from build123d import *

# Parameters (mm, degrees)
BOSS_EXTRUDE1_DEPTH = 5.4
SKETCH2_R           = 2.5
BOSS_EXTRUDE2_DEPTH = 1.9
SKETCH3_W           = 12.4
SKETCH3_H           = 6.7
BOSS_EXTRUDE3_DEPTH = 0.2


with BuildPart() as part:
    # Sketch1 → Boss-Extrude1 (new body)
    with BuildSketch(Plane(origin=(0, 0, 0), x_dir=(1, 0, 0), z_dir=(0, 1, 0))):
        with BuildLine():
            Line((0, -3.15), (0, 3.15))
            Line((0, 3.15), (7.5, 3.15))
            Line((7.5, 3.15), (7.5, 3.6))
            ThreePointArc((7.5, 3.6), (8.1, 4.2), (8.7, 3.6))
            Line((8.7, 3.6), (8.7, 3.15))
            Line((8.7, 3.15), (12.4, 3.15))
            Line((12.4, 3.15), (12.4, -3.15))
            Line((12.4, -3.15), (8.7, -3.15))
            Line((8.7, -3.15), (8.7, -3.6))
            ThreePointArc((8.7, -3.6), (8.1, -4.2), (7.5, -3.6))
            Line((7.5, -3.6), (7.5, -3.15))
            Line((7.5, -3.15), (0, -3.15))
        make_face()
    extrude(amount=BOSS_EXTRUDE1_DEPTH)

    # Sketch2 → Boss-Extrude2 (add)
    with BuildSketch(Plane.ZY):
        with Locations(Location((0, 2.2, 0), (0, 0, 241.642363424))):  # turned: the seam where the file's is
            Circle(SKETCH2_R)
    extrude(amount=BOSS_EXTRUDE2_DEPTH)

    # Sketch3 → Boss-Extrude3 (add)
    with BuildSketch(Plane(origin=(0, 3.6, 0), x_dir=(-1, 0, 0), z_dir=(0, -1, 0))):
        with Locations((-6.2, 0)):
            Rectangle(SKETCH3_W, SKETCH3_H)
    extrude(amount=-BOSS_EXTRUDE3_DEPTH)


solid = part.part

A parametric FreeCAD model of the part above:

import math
import FreeCAD as App
import Part
import Sketcher

V = App.Vector
Q = App.Units.Quantity


def add_polygon(sketch, points):
    """Adds a closed chain of lines whose ends are joined by coincident constraints."""
    first, n = sketch.GeometryCount, len(points)
    for a, b in zip(points, points[1:] + points[:1]):
        sketch.addGeometry(Part.LineSegment(App.Vector(*a, 0), App.Vector(*b, 0)), False)
    for i in range(n):
        sketch.addConstraint(Sketcher.Constraint("Coincident", first + i, 2, first + (i + 1) % n, 1))

doc = App.newDocument("Part")
body = doc.addObject("PartDesign::Body", "Body")

sketch1 = body.newObject("Sketcher::SketchObject", "Sketch")
sketch1.AttachmentSupport = (doc.getObject("XZ_Plane"), [""])
sketch1.MapMode = "FlatFace"
sketch1.addGeometry([
    Part.LineSegment(V(0, -3.15, 0), V(0, 3.15, 0)),
    Part.LineSegment(V(0, 3.15, 0), V(7.5, 3.15, 0)),
    Part.LineSegment(V(7.5, 3.15, 0), V(7.5, 3.6, 0)),
    Part.ArcOfCircle(Part.Circle(V(8.1, 3.6, 0), V(0, 0, 1), 0.6), math.radians(0), math.radians(180)),
    Part.LineSegment(V(8.7, 3.6, 0), V(8.7, 3.15, 0)),
    Part.LineSegment(V(8.7, 3.15, 0), V(12.4, 3.15, 0)),
    Part.LineSegment(V(12.4, 3.15, 0), V(12.4, -3.15, 0)),
    Part.LineSegment(V(12.4, -3.15, 0), V(8.7, -3.15, 0)),
    Part.LineSegment(V(8.7, -3.15, 0), V(8.7, -3.6, 0)),
    Part.ArcOfCircle(Part.Circle(V(8.1, -3.6, 0), V(0, 0, 1), 0.6), math.radians(180), math.radians(360)),
    Part.LineSegment(V(7.5, -3.6, 0), V(7.5, -3.15, 0)),
    Part.LineSegment(V(7.5, -3.15, 0), V(0, -3.15, 0)),
], False)
sketch1.addConstraint([
    Sketcher.Constraint("Coincident", 0, 2, 1, 1),
    Sketcher.Constraint("Coincident", 1, 2, 2, 1),
    Sketcher.Constraint("Tangent", 2, 2, 3, 2),
    Sketcher.Constraint("Tangent", 3, 1, 4, 1),
    Sketcher.Constraint("Coincident", 4, 2, 5, 1),
    Sketcher.Constraint("Coincident", 5, 2, 6, 1),
    Sketcher.Constraint("Coincident", 6, 2, 7, 1),
    Sketcher.Constraint("Coincident", 7, 2, 8, 1),
    Sketcher.Constraint("Tangent", 8, 2, 9, 2),
    Sketcher.Constraint("Tangent", 9, 1, 10, 1),
    Sketcher.Constraint("Coincident", 10, 2, 11, 1),
    Sketcher.Constraint("Coincident", 11, 2, 0, 1),
    Sketcher.Constraint("Vertical", 0),
    Sketcher.Constraint("Horizontal", 1),
    Sketcher.Constraint("Vertical", 2),
    Sketcher.Constraint("Vertical", 4),
    Sketcher.Constraint("Horizontal", 5),
    Sketcher.Constraint("Vertical", 6),
    Sketcher.Constraint("Horizontal", 7),
    Sketcher.Constraint("Vertical", 8),
    Sketcher.Constraint("Vertical", 10),
    Sketcher.Constraint("Horizontal", 11),
    Sketcher.Constraint("Equal", 3, 9),
    Sketcher.Constraint("Symmetric", 0, 2, 11, 2, -1, 1),
    Sketcher.Constraint("Symmetric", 3, 3, 9, 3, -1),
    Sketcher.Constraint("Horizontal", 1, 2, 4, 2),
    Sketcher.Constraint("Horizontal", 7, 2, 10, 2),
    Sketcher.Constraint("Radius", 3, Q("0.6 mm")),
    Sketcher.Constraint("DistanceX", 1, 1, 1, 2, Q("7.5 mm")),
    Sketcher.Constraint("DistanceX", 5, 1, 5, 2, Q("3.7 mm")),
    Sketcher.Constraint("DistanceY", 0, 1, 0, 2, Q("6.3 mm")),
    Sketcher.Constraint("DistanceY", 2, 1, 2, 2, Q("0.45 mm")),
])
pad1 = body.newObject("PartDesign::Pad", "Pad")
pad1.Profile = sketch1
pad1.Length = 5.4
pad1.Reversed = True

sketch2 = body.newObject("Sketcher::SketchObject", "Sketch001")
sketch2.AttachmentSupport = (doc.getObject("YZ_Plane"), [""])
sketch2.MapMode = "FlatFace"
sketch2.addGeometry(Part.Circle(V(2.2, 0, 0), V(0, 0, 1), 2.5), False)
sketch2.addConstraint([
    Sketcher.Constraint("PointOnObject", 0, 3, -1),
    Sketcher.Constraint("Diameter", 0, Q("5 mm")),
    Sketcher.Constraint("DistanceX", -1, 1, 0, 3, Q("2.2 mm")),
])
pad2 = body.newObject("PartDesign::Pad", "Pad001")
pad2.Profile = sketch2
pad2.Length = 1.9
pad2.Reversed = True

sketch3 = body.newObject("Sketcher::SketchObject", "Sketch002")
sketch3.AttachmentSupport = (doc.getObject("XZ_Plane"), [""])
sketch3.MapMode = "FlatFace"
sketch3.AttachmentOffset = App.Placement(V(0, 0, -3.6), App.Rotation())
add_polygon(sketch3, [(12, -3), (12, 3), (0, 3), (0, -3)])
sketch3.addConstraint([
    Sketcher.Constraint("Vertical", 0),
    Sketcher.Constraint("Horizontal", 1),
    Sketcher.Constraint("Vertical", 2),
    Sketcher.Constraint("Horizontal", 3),
    Sketcher.Constraint("Symmetric", 1, 2, 2, 2, -1, 1),
    Sketcher.Constraint("DistanceX", 1, 2, 1, 1, Q("12.4 mm")),
    Sketcher.Constraint("DistanceY", 0, 1, 0, 2, Q("6.7 mm")),
])
pad3 = body.newObject("PartDesign::Pad", "Pad002")
pad3.Profile = sketch3
pad3.Length = 0.2
pad3.Reversed = True

doc.recompute()
